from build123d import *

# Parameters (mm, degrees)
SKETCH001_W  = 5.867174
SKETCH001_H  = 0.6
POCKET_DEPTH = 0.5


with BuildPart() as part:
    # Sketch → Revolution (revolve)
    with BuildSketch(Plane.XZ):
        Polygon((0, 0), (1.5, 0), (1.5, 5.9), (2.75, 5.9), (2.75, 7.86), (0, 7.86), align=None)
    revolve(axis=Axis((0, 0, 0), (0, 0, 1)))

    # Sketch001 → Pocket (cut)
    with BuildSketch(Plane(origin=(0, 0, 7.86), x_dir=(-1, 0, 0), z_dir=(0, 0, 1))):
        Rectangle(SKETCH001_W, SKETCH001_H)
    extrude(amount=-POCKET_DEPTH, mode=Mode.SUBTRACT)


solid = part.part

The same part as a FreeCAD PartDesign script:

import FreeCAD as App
import Part
import Sketcher
from FreeCAD import Vector


def add_polygon(sketch, points):
    """Adds a closed chain of lines whose ends are joined by coincident constraints."""
    first, n = sketch.GeometryCount, len(points)
    for a, b in zip(points, points[1:] + points[:1]):
        sketch.addGeometry(Part.LineSegment(App.Vector(*a, 0), App.Vector(*b, 0)), False)
    for i in range(n):
        sketch.addConstraint(Sketcher.Constraint("Coincident", first + i, 2, first + (i + 1) % n, 1))

doc = App.newDocument("Part")
params = doc.addObject("Spreadsheet::Sheet", "Params")
for row, (alias, value) in enumerate([
    ("sketch1_width", "1.5 mm"),
    ("sketch1_height", "5.9 mm"),
    ("sketch1_width2", "1.25 mm"),
    ("sketch1_height2", "1.96 mm"),
    ("revolution_angle", "360 deg"),
    ("sketch2_height", "0.6 mm"),
    ("pocket1_length", "0.5 mm"),
], start=1):
    params.set(f"A{row}", alias)
    params.set(f"B{row}", "=" + value)
    params.setAlias(f"B{row}", alias)

body = doc.addObject("PartDesign::Body", "Body")

sketch1 = body.newObject("Sketcher::SketchObject", "Sketch")
sketch1.AttachmentSupport = (doc.getObject("XZ_Plane"), [""])
sketch1.MapMode = "FlatFace"
add_polygon(sketch1, [(0, 0), (1.5, 0), (1.5, 5.9), (2.8, 5.9), (2.8, 7.9), (0, 7.9)])
sketch1.addConstraint([
    Sketcher.Constraint("Horizontal", 0),
    Sketcher.Constraint("Vertical", 1),
    Sketcher.Constraint("Horizontal", 2),
    Sketcher.Constraint("Vertical", 3),
    Sketcher.Constraint("Horizontal", 4),
    Sketcher.Constraint("Vertical", 5),
    Sketcher.Constraint("Coincident", 5, 2, -1, 1),
    Sketcher.Constraint("DistanceX", 0, 1, 0, 2, 1.5),
    Sketcher.Constraint("DistanceY", 1, 1, 1, 2, 5.9),
    Sketcher.Constraint("DistanceX", 2, 1, 2, 2, 1.25),
    Sketcher.Constraint("DistanceY", 3, 1, 3, 2, 1.96),
])
sketch1.setExpression("Constraints[13]", "Params.sketch1_width")
sketch1.setExpression("Constraints[14]", "Params.sketch1_height")
sketch1.setExpression("Constraints[15]", "Params.sketch1_width2")
sketch1.setExpression("Constraints[16]", "Params.sketch1_height2")
revolution = body.newObject("PartDesign::Revolution", "Revolution")
revolution.Profile = sketch1
revolution.ReferenceAxis = (sketch1, ["V_Axis"])
revolution.setExpression("Angle", "Params.revolution_angle")

sketch2 = body.newObject("Sketcher::SketchObject", "Sketch001")
sketch2.AttachmentSupport = (doc.getObject("XY_Plane"), [""])
sketch2.MapMode = "FlatFace"
sketch2.AttachmentOffset = App.Placement(Vector(0, 0, 7.86), App.Rotation())
add_polygon(sketch2, [(2.9, -0.3), (2.9, 0.3), (-2.9, 0.3), (-2.9, -0.3)])
sketch2.addConstraint([
    Sketcher.Constraint("Vertical", 0),
    Sketcher.Constraint("Horizontal", 1),
    Sketcher.Constraint("Vertical", 2),
    Sketcher.Constraint("Horizontal", 3),
    Sketcher.Constraint("Symmetric", 0, 2, 2, 2, -1, 1),
    Sketcher.Constraint("DistanceY", 0, 1, 0, 2, 0.6),
    Sketcher.Constraint("DistanceX", 1, 2, 1, 1, 5.867174),
])
sketch2.setExpression("Constraints[9]", "Params.sketch2_height")
pocket1 = body.newObject("PartDesign::Pocket", "Pocket")
pocket1.Profile = sketch2
pocket1.setExpression("Length", "Params.pocket1_length")

doc.recompute()
